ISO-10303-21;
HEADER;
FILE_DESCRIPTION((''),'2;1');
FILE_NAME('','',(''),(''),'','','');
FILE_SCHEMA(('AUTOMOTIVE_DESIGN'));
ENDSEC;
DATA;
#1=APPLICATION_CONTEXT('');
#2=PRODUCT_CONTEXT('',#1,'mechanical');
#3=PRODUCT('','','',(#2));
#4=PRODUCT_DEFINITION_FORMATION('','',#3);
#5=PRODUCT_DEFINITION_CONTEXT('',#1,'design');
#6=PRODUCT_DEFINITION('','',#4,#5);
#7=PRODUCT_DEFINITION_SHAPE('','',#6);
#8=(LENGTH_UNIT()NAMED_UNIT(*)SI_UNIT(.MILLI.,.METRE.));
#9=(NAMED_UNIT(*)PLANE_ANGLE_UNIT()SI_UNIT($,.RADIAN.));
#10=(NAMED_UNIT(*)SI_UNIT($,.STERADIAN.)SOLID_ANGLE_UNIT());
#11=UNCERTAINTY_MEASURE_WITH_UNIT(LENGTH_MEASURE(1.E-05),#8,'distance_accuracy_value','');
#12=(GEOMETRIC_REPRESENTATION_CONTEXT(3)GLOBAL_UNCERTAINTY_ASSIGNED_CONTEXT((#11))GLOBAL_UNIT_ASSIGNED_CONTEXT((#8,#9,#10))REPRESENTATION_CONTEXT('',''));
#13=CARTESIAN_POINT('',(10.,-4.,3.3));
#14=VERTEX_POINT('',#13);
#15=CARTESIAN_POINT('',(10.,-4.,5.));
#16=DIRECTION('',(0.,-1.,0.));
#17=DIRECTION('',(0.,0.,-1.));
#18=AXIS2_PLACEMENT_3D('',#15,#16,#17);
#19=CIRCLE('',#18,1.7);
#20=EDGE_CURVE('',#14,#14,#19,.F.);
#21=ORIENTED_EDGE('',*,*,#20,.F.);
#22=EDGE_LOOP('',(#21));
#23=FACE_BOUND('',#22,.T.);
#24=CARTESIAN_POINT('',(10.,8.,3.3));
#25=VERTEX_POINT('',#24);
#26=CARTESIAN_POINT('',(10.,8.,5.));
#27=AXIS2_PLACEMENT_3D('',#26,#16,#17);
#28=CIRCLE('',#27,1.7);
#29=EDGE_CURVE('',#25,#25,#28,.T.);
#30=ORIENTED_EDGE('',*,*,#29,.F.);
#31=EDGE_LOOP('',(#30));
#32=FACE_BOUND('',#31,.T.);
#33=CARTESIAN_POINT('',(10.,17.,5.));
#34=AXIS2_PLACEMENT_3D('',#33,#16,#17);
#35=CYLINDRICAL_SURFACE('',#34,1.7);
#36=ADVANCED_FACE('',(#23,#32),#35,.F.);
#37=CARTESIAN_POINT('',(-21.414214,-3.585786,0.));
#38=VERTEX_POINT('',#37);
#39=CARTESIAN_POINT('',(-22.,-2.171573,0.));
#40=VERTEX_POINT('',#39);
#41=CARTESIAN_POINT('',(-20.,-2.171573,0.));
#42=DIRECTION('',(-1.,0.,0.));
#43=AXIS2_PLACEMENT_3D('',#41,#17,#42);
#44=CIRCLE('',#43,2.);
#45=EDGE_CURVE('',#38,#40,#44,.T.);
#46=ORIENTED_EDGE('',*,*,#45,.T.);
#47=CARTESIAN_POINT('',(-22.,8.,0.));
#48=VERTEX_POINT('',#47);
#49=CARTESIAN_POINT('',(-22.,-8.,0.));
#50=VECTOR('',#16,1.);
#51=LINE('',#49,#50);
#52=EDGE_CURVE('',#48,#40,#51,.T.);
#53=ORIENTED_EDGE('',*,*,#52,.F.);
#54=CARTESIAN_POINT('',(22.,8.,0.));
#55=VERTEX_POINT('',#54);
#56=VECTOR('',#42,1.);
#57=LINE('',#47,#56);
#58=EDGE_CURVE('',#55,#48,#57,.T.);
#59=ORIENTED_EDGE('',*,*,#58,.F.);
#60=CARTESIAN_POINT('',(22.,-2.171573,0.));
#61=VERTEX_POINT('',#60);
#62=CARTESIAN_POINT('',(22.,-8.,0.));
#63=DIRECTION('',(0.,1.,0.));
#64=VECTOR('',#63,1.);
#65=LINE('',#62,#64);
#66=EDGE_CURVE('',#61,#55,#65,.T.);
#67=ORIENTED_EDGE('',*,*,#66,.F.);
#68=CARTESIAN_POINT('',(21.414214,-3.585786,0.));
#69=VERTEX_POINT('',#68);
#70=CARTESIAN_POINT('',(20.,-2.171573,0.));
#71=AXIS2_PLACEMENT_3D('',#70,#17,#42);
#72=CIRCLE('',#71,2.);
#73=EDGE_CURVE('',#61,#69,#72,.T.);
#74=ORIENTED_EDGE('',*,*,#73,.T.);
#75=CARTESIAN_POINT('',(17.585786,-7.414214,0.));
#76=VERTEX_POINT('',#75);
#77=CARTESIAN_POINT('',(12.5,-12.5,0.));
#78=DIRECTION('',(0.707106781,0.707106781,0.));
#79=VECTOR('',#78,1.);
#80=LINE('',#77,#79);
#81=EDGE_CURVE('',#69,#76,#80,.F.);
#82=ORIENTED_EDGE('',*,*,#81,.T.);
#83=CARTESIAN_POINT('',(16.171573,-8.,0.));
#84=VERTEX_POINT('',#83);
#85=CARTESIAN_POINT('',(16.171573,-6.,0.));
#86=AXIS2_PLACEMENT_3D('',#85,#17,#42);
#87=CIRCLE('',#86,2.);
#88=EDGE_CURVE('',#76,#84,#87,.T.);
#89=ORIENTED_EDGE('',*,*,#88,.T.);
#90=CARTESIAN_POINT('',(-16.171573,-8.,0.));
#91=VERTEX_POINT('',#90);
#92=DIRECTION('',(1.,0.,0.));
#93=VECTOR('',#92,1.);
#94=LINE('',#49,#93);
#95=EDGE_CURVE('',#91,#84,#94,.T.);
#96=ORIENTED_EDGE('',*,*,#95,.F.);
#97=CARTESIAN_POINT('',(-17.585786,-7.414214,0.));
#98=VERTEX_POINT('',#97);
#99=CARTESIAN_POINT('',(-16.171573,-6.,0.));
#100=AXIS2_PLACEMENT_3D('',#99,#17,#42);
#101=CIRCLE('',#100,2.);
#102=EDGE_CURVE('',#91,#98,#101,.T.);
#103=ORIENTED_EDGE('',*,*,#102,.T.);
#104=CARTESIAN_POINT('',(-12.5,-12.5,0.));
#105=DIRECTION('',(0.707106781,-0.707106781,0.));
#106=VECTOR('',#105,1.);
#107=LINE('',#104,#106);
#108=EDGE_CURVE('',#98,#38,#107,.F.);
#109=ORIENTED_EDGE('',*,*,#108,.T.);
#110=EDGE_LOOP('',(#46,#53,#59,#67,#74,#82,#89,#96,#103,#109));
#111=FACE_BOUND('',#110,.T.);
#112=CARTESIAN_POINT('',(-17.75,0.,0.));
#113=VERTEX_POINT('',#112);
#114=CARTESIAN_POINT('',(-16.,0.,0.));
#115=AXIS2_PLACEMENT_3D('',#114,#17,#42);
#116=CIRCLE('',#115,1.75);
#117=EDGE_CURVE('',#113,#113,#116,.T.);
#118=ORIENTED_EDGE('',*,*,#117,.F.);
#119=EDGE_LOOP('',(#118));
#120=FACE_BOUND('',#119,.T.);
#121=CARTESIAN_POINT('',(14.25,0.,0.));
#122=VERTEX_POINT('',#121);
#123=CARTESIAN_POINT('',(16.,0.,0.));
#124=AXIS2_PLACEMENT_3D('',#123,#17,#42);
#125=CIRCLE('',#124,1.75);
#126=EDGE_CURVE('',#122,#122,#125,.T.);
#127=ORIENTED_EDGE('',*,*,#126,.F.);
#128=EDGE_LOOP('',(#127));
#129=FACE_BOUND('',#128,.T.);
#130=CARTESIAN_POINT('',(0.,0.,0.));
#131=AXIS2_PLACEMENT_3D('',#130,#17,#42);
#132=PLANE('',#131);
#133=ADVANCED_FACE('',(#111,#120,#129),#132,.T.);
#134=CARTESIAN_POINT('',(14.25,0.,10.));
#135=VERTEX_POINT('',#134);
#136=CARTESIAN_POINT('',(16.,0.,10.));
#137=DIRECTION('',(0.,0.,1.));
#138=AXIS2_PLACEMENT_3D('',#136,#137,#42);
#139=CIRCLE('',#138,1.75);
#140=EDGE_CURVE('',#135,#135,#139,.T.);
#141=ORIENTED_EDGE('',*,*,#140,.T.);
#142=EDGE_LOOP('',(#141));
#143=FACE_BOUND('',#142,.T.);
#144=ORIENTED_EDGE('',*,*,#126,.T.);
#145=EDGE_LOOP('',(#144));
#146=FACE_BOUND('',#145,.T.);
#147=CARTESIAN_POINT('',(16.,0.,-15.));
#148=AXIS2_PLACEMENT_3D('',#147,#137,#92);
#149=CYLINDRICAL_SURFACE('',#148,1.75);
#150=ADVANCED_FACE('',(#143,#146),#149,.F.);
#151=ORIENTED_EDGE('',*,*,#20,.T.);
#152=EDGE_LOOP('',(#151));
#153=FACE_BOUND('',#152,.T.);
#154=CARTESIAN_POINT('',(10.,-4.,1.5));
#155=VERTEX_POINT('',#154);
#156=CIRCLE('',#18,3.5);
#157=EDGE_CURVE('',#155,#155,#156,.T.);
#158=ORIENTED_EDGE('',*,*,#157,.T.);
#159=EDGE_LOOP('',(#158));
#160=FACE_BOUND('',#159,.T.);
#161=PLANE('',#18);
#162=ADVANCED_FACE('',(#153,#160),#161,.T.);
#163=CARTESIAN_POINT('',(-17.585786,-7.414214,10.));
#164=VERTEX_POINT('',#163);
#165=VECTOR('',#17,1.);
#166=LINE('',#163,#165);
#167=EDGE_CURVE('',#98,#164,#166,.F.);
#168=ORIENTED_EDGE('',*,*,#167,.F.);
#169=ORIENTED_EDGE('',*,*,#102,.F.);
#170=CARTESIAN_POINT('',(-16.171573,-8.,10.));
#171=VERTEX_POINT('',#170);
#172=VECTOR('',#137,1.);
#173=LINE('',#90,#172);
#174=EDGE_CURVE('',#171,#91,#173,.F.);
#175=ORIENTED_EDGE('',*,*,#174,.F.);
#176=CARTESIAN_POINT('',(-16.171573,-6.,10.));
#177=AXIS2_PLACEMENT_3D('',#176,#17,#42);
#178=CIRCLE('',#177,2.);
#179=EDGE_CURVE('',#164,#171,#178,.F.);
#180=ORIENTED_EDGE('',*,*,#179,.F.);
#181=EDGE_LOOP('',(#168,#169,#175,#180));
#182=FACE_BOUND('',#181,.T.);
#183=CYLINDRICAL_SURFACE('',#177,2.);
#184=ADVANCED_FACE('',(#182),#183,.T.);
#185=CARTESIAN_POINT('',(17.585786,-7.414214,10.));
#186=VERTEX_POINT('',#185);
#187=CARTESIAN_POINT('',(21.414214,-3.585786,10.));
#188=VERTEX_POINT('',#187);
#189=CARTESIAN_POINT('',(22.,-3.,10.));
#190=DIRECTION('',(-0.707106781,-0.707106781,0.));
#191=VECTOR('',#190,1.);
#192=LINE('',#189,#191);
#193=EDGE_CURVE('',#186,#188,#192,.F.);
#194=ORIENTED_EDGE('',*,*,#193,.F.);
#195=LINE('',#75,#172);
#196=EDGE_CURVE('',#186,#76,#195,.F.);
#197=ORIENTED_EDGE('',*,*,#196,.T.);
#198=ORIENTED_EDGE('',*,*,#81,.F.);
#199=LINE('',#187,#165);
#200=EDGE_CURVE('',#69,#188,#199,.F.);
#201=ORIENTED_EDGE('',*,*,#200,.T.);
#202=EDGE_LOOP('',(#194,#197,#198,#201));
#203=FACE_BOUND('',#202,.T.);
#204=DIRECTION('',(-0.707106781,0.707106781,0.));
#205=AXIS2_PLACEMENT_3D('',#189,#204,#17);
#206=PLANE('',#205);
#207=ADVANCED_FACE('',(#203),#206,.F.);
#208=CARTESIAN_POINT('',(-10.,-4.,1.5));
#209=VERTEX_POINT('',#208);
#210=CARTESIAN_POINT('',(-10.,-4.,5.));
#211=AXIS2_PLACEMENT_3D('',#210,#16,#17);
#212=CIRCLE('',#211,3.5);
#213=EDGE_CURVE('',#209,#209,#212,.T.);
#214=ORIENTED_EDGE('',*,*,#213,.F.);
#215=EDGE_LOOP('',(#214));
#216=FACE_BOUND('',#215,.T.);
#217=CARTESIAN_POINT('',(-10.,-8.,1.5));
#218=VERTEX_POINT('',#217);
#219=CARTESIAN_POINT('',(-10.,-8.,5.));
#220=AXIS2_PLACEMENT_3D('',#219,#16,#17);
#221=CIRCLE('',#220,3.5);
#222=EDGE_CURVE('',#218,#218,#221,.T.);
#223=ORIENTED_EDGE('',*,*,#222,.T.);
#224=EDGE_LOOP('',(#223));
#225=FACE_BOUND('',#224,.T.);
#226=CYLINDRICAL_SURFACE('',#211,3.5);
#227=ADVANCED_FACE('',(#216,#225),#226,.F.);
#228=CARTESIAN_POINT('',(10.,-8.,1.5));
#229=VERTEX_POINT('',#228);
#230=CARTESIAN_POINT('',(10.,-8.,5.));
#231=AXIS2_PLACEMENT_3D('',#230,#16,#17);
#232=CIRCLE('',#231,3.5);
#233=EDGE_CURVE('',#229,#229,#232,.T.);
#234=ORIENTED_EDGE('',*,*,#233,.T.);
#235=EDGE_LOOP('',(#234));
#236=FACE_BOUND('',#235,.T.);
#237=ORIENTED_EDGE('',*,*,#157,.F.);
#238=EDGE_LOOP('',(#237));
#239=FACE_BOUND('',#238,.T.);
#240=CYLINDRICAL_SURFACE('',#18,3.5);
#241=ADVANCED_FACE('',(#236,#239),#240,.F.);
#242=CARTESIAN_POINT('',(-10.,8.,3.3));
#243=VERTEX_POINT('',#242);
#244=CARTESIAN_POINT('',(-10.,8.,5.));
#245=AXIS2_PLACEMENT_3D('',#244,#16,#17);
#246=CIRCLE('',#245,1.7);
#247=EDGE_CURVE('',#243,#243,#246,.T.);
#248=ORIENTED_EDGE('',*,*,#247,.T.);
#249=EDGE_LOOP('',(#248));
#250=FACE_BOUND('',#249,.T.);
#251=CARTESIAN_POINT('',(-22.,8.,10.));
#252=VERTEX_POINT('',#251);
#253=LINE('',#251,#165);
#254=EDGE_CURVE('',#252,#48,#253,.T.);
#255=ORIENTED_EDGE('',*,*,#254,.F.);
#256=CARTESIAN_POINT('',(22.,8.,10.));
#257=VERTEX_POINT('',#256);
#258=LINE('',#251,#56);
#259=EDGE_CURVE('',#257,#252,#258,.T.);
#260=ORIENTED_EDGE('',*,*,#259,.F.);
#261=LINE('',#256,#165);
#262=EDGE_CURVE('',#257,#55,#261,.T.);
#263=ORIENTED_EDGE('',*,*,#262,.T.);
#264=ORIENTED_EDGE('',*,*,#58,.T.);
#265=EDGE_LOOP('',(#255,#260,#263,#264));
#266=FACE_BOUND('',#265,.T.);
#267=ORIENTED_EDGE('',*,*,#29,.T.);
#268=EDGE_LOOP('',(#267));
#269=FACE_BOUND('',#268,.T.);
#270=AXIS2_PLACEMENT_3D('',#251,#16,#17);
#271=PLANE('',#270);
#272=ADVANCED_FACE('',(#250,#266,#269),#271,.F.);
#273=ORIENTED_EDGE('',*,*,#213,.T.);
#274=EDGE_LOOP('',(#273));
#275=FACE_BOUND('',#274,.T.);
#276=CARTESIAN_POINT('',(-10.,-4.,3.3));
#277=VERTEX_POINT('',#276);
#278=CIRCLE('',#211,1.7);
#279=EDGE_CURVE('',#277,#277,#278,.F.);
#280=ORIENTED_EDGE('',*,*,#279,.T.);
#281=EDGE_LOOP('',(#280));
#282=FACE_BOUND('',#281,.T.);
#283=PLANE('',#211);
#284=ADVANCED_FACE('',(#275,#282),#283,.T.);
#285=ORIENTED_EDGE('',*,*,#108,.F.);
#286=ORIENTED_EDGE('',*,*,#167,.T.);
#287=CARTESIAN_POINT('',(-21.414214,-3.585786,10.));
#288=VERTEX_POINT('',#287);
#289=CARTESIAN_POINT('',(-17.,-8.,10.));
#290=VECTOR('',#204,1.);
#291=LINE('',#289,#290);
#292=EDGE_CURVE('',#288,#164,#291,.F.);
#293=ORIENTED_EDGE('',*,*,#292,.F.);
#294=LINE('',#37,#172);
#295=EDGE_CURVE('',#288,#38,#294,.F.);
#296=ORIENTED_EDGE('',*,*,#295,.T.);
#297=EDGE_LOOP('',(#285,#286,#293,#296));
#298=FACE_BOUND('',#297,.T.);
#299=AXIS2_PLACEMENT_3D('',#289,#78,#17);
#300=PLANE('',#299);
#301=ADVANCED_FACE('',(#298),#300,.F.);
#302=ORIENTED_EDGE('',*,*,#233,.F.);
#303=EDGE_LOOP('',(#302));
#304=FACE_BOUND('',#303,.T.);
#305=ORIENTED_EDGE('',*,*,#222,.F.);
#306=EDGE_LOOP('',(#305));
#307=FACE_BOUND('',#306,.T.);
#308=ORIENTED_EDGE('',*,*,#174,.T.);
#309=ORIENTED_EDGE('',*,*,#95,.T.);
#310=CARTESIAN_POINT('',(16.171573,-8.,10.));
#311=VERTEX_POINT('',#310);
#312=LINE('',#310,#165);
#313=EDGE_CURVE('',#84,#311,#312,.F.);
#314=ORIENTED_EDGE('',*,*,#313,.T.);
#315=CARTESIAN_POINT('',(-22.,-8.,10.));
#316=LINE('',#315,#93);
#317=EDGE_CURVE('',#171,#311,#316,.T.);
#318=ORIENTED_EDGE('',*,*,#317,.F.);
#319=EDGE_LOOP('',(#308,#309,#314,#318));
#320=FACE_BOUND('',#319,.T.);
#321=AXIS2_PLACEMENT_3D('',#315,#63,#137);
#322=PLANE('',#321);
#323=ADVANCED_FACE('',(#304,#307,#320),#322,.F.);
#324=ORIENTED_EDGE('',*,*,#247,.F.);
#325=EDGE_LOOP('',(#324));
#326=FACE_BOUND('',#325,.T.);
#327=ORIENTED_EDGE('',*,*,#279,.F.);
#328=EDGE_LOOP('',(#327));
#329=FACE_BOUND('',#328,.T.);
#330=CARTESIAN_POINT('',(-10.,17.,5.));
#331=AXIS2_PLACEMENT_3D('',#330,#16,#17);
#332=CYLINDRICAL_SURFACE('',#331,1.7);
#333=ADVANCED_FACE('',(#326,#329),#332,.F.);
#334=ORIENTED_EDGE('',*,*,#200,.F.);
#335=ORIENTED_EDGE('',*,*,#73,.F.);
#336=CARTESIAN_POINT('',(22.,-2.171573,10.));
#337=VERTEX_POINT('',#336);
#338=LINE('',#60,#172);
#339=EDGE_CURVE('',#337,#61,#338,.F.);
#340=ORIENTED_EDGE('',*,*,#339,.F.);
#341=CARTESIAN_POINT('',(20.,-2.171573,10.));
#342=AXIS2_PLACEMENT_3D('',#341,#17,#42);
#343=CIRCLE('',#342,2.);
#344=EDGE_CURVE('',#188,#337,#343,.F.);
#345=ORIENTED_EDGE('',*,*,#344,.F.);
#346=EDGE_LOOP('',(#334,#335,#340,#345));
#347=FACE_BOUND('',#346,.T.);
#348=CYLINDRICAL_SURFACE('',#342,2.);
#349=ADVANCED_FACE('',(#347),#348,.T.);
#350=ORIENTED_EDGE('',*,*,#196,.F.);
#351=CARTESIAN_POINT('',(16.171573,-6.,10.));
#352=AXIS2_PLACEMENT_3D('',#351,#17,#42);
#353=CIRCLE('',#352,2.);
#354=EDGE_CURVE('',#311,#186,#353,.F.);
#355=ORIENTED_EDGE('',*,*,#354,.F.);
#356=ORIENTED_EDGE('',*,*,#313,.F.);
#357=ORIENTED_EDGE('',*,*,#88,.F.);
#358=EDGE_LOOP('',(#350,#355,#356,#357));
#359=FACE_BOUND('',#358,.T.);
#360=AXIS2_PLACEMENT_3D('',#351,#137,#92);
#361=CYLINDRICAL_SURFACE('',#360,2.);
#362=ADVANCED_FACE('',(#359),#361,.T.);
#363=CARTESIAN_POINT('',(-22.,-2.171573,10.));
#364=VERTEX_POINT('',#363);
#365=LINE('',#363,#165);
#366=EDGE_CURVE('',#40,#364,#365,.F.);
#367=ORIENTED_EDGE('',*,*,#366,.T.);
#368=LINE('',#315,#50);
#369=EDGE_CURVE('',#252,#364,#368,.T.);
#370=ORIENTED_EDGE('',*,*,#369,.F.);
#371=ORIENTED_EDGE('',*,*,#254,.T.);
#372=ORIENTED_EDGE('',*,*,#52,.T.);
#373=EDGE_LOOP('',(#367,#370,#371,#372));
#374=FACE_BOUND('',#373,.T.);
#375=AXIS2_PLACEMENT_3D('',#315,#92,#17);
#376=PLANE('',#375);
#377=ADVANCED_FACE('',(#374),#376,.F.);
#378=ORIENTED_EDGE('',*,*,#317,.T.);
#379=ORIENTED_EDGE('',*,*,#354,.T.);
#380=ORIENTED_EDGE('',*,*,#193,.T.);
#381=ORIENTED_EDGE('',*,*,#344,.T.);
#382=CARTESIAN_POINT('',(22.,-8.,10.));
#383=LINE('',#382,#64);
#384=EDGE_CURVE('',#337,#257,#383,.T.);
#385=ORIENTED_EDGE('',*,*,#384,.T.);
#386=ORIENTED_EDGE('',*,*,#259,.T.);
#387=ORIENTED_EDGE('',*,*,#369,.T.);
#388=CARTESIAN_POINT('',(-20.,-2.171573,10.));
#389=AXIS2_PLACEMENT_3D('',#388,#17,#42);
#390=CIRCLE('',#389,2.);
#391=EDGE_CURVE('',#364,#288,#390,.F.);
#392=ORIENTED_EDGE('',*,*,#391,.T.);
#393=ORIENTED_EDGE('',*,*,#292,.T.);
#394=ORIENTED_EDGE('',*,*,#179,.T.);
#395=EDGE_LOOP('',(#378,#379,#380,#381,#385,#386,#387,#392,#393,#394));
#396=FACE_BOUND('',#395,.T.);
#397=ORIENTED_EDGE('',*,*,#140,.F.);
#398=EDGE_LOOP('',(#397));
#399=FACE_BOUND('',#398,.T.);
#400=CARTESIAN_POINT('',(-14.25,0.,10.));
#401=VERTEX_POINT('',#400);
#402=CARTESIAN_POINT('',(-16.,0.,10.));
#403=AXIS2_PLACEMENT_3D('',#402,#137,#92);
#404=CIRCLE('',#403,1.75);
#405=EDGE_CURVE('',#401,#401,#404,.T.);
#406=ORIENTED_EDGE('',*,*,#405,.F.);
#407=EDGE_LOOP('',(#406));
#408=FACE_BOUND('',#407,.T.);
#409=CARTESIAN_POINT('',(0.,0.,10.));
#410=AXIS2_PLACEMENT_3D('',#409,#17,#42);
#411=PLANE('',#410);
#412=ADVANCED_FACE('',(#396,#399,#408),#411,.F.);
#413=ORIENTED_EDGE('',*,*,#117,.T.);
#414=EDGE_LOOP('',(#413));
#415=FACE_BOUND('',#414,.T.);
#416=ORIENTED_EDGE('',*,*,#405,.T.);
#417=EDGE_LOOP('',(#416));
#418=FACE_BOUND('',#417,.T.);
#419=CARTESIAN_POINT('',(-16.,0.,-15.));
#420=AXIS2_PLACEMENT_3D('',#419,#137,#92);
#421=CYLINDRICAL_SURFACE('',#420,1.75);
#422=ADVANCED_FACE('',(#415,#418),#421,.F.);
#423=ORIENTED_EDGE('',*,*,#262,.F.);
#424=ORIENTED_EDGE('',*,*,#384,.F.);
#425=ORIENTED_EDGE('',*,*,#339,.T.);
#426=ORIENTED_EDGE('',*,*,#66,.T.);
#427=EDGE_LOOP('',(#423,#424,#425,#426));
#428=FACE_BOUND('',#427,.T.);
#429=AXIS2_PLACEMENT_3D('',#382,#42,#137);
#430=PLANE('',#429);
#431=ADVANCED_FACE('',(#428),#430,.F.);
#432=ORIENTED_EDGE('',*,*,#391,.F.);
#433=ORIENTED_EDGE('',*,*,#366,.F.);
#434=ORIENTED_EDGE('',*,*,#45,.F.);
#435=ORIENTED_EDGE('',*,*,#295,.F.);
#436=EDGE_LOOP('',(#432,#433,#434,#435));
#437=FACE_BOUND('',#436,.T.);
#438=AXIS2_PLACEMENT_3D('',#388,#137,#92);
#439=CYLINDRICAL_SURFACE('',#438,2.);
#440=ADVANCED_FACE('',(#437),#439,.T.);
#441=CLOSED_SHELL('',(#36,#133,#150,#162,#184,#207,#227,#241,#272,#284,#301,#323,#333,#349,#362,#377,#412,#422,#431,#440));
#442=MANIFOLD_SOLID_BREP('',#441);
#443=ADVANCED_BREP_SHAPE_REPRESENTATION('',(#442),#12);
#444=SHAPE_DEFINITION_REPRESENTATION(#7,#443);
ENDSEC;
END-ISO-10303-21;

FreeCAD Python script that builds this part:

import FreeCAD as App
import Part
import Sketcher
from FreeCAD import Vector
Q = App.Units.Quantity


def edges_at(feature, points):
    """Names of the edges that pass closest to the given points."""
    edges = feature.Shape.Edges
    near = lambda p: min(range(len(edges)), key=lambda i: edges[i].distToShape(Part.Vertex(*p))[0])
    return sorted({f"Edge{near(p) + 1}" for p in points})


def add_polygon(sketch, points):
    """Adds a closed chain of lines whose ends are joined by coincident constraints."""
    first, n = sketch.GeometryCount, len(points)
    for a, b in zip(points, points[1:] + points[:1]):
        sketch.addGeometry(Part.LineSegment(App.Vector(*a, 0), App.Vector(*b, 0)), False)
    for i in range(n):
        sketch.addConstraint(Sketcher.Constraint("Coincident", first + i, 2, first + (i + 1) % n, 1))

doc = App.newDocument("Part")
body = doc.addObject("PartDesign::Body", "Body")

sketch1 = doc.addObject("Sketcher::SketchObject", "Sketch")
body.addObject(sketch1)
sketch1.AttachmentSupport = (doc.XY_Plane, [""])
sketch1.MapMode = "FlatFace"
add_polygon(sketch1, [(-22, 8), (-22, -8), (22, -8), (22, 8)])
sketch1.addConstraint([
    Sketcher.Constraint("Vertical", 0),
    Sketcher.Constraint("Horizontal", 1),
    Sketcher.Constraint("Vertical", 2),
    Sketcher.Constraint("Horizontal", 3),
    Sketcher.Constraint("Symmetric", 0, 2, 2, 2, -1, 1),
    Sketcher.Constraint("DistanceX", 1, 1, 1, 2, Q("44 mm")),
    Sketcher.Constraint("DistanceY", 0, 2, 0, 1, Q("16 mm")),
])
pad1 = doc.addObject("PartDesign::Pad", "Pad")
body.addObject(pad1)
pad1.Profile = sketch1
pad1.Length = 10

sketch2 = doc.addObject("Sketcher::SketchObject", "Sketch001")
body.addObject(sketch2)
sketch2.AttachmentSupport = (doc.XZ_Plane, [""])
sketch2.MapMode = "FlatFace"
sketch2.AttachmentOffset = App.Placement(Vector(0, 0, 8), App.Rotation())
sketch2.addGeometry([
    Part.Circle(Vector(-10, 5, 0), Vector(0, 0, 1), 1.7),
    Part.Circle(Vector(10, 5, 0), Vector(0, 0, 1), 1.7),
], False)
sketch2.addConstraint([
    Sketcher.Constraint("Equal", 0, 1),
    Sketcher.Constraint("Symmetric", 0, 3, 1, 3, -2),
    Sketcher.Constraint("Diameter", 0, Q("3.4 mm")),
    Sketcher.Constraint("DistanceX", 0, 3, -1, 1, Q("10 mm")),
    Sketcher.Constraint("DistanceY", -1, 1, 0, 3, Q("5 mm")),
])
pocket1 = doc.addObject("PartDesign::Pocket", "Pocket")
body.addObject(pocket1)
pocket1.Profile = sketch2
pocket1.Length = 25

sketch3 = doc.addObject("Sketcher::SketchObject", "Sketch002")
body.addObject(sketch3)
sketch3.AttachmentSupport = (doc.XY_Plane, [""])
sketch3.MapMode = "FlatFace"
sketch3.AttachmentOffset = App.Placement(Vector(0, 0, 10), App.Rotation())
sketch3.addGeometry([
    Part.Circle(Vector(-16, 0, 0), Vector(0, 0, 1), 1.75),
    Part.Circle(Vector(16, 0, 0), Vector(0, 0, 1), 1.75),
], False)
sketch3.addConstraint([
    Sketcher.Constraint("Equal", 0, 1),
    Sketcher.Constraint("Symmetric", 0, 3, 1, 3, -1, 1),
    Sketcher.Constraint("PointOnObject", 0, 3, -1),
    Sketcher.Constraint("Diameter", 0, Q("3.5 mm")),
    Sketcher.Constraint("DistanceX", 0, 3, -1, 1, Q("16 mm")),
])
pocket2 = doc.addObject("PartDesign::Pocket", "Pocket001")
body.addObject(pocket2)
pocket2.Profile = sketch3
pocket2.Length = 25
doc.recompute()

chamfer = doc.addObject("PartDesign::Chamfer", "Chamfer")
body.addObject(chamfer)
chamfer.Base = (pocket2, edges_at(pocket2, [(22, -8, 5), (-22, -8, 5)]))
chamfer.Size = 5
doc.recompute()

fillet = doc.addObject("PartDesign::Fillet", "Fillet")
body.addObject(fillet)
fillet.Base = (chamfer, edges_at(chamfer, [
    (22, -3, 5),
    (-17, -8, 5),
    (17, -8, 5),
    (-22, -3, 5),
]))
fillet.Radius = 2

sketch4 = doc.addObject("Sketcher::SketchObject", "Sketch003")
body.addObject(sketch4)
sketch4.AttachmentSupport = (doc.XZ_Plane, [""])
sketch4.MapMode = "FlatFace"
sketch4.AttachmentOffset = App.Placement(Vector(0, 0, 8), App.Rotation())
sketch4.addGeometry([
    Part.Circle(Vector(10, 5, 0), Vector(0, 0, 1), 3.5),
    Part.Circle(Vector(-10, 5, 0), Vector(0, 0, 1), 3.5),
], False)
sketch4.addConstraint([
    Sketcher.Constraint("Equal", 0, 1),
    Sketcher.Constraint("Symmetric", 0, 3, 1, 3, -2),
    Sketcher.Constraint("Diameter", 0, Q("7 mm")),
    Sketcher.Constraint("DistanceX", -1, 1, 0, 3, Q("10 mm")),
    Sketcher.Constraint("DistanceY", -1, 1, 0, 3, Q("5 mm")),
])
pocket3 = doc.addObject("PartDesign::Pocket", "Pocket002")
body.addObject(pocket3)
pocket3.Profile = sketch4
pocket3.Length = 4

doc.recompute()
